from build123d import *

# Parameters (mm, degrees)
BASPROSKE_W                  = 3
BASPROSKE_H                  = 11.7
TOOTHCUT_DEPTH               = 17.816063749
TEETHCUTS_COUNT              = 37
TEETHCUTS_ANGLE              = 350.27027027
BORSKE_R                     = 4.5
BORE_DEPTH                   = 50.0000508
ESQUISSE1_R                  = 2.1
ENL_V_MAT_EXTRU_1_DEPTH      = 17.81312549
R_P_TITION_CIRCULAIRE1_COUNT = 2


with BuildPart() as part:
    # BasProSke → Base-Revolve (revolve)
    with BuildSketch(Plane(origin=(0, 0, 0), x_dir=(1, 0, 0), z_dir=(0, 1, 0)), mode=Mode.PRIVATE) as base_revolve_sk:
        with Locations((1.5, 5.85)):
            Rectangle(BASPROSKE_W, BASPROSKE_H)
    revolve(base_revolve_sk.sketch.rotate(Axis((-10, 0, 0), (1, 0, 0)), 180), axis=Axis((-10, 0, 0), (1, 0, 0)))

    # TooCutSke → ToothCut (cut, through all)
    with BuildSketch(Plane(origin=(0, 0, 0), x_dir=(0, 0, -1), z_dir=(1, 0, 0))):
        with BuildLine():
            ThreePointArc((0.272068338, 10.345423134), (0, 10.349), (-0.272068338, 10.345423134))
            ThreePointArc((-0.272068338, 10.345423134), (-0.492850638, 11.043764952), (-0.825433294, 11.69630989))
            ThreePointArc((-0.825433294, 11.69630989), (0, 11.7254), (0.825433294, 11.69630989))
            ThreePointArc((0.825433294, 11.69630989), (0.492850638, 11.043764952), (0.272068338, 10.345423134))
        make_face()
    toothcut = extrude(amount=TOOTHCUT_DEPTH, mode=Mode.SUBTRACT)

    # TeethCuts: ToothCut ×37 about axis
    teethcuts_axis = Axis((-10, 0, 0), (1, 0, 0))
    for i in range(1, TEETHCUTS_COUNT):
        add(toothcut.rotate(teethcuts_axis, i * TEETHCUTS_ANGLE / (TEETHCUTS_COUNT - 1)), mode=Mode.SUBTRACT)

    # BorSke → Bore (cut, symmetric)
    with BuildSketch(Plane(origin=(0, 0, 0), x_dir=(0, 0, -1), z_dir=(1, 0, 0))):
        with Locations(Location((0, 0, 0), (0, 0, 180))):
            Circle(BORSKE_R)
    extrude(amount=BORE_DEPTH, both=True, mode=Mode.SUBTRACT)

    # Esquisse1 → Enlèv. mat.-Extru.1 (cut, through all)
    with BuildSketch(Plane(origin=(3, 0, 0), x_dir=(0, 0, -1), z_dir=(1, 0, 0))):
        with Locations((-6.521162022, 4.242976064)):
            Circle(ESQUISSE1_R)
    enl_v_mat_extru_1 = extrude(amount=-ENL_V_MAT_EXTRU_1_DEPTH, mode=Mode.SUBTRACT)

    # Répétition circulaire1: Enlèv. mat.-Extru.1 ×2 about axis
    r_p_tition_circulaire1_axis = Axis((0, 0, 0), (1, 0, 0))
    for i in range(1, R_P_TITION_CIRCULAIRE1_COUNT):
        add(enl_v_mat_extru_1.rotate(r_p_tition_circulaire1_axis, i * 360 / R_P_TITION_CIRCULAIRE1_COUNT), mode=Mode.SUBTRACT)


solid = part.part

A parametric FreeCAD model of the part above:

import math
import FreeCAD as App
import Part
import Sketcher

V = App.Vector

doc = App.newDocument("Part")
params = doc.addObject("Spreadsheet::Sheet", "Params")
for row, (alias, value) in enumerate([
    ("sketch1_width", "3 mm"),
    ("sketch1_height", "11.7 mm"),
    ("revolution_angle", "360 deg"),
    ("sketch2_radius", "4.44 mm"),
    ("sketch3_diameter", "9 mm"),
    ("pocket2_length", "100.000102 mm"),
    ("sketch4_diameter", "4.2 mm"),
], start=1):
    params.set(f"A{row}", alias)
    params.set(f"B{row}", "=" + value)
    params.setAlias(f"B{row}", alias)

body = doc.addObject("PartDesign::Body", "Body")

sketch1 = body.newObject("Sketcher::SketchObject", "Sketch")
sketch1.AttachmentSupport = (doc.getObject("XZ_Plane"), [""])
sketch1.MapMode = "FlatFace"
sketch1.addGeometry(Part.LineSegment(V(0, -11.7, 0), V(0, 0, 0)), False)
sketch1.addGeometry(Part.LineSegment(V(0, 0, 0), V(3, 0, 0)), False)
sketch1.addGeometry(Part.LineSegment(V(3, 0, 0), V(3, -11.7, 0)), False)
sketch1.addGeometry(Part.LineSegment(V(3, -11.7, 0), V(0, -11.7, 0)), False)
sketch1.addConstraint(Sketcher.Constraint("Coincident", 0, 2, 1, 1))
sketch1.addConstraint(Sketcher.Constraint("Coincident", 1, 2, 2, 1))
sketch1.addConstraint(Sketcher.Constraint("Coincident", 2, 2, 3, 1))
sketch1.addConstraint(Sketcher.Constraint("Coincident", 3, 2, 0, 1))
sketch1.addConstraint(Sketcher.Constraint("Vertical", 0))
sketch1.addConstraint(Sketcher.Constraint("Horizontal", 1))
sketch1.addConstraint(Sketcher.Constraint("Vertical", 2))
sketch1.addConstraint(Sketcher.Constraint("Horizontal", 3))
sketch1.addConstraint(Sketcher.Constraint("Coincident", 0, 2, -1, 1))
sketch1.addConstraint(Sketcher.Constraint("DistanceX", 1, 1, 1, 2, 3.0))
sketch1.addConstraint(Sketcher.Constraint("DistanceY", 0, 1, 0, 2, 11.7))
sketch1.setExpression("Constraints[9]", "Params.sketch1_width")
sketch1.setExpression("Constraints[10]", "Params.sketch1_height")
revolution = body.newObject("PartDesign::Revolution", "Revolution")
revolution.Profile = sketch1
revolution.ReferenceAxis = (sketch1, ["H_Axis"])
revolution.setExpression("Angle", "Params.revolution_angle")

sketch2 = body.newObject("Sketcher::SketchObject", "Sketch001")
sketch2.AttachmentSupport = (doc.getObject("YZ_Plane"), [""])
sketch2.MapMode = "FlatFace"
sketch2.addGeometry(Part.ArcOfCircle(Part.Circle(V(0, 0, 0), V(0, 0, 1), 10.3), math.radians(-1.51), math.radians(1.51)), False)
sketch2.addGeometry(Part.ArcOfCircle(Part.Circle(V(9.4, -4.6, 0), V(0, 0, 1), 4.4), math.radians(58.26), math.radians(77.19)), False)
sketch2.addGeometry(Part.ArcOfCircle(Part.Circle(V(0, 0, 0), V(0, 0, 1), 11.7), math.radians(-4.04), math.radians(4.04)), False)
sketch2.addGeometry(Part.ArcOfCircle(Part.Circle(V(9.4, 4.6, 0), V(0, 0, 1), 4.4), math.radians(-77.19), math.radians(-58.26)), False)
sketch2.addConstraint(Sketcher.Constraint("Coincident", 0, 1, 1, 2))
sketch2.addConstraint(Sketcher.Constraint("Coincident", 1, 1, 2, 1))
sketch2.addConstraint(Sketcher.Constraint("Coincident", 2, 2, 3, 2))
sketch2.addConstraint(Sketcher.Constraint("Coincident", 3, 1, 0, 2))
sketch2.addConstraint(Sketcher.Constraint("Coincident", 0, 3, -1, 1))
sketch2.addConstraint(Sketcher.Constraint("Coincident", 2, 3, -1, 1))
sketch2.addConstraint(Sketcher.Constraint("Equal", 1, 3))
sketch2.addConstraint(Sketcher.Constraint("Symmetric", 1, 3, 3, 3, -1))
sketch2.addConstraint(Sketcher.Constraint("Radius", 1, 4.44))
sketch2.addConstraint(Sketcher.Constraint("Radius", 0, 10.349))
sketch2.addConstraint(Sketcher.Constraint("Radius", 2, 11.7254))
sketch2.addConstraint(Sketcher.Constraint("DistanceY", 1, 3, -1, 1, 4.601501))
sketch2.addConstraint(Sketcher.Constraint("DistanceY", 0, 1, 2, 2, 1.097502))
sketch2.setExpression("Constraints[8]", "Params.sketch2_radius")
pocket1 = body.newObject("PartDesign::Pocket", "Pocket")
pocket1.Profile = sketch2
pocket1.Type = "ThroughAll"
pocket1.Reversed = True
doc.recompute()

polarpattern = body.newObject("PartDesign::PolarPattern", "PolarPattern")
polarpattern.Originals = [pocket1]
polarpattern.Axis = (doc.getObject("X_Axis"), [""])
polarpattern.Angle = 360
polarpattern.Occurrences = 37
body.Tip = polarpattern

sketch3 = body.newObject("Sketcher::SketchObject", "Sketch002")
sketch3.AttachmentSupport = (doc.getObject("YZ_Plane"), [""])
sketch3.MapMode = "FlatFace"
sketch3.addGeometry(Part.Circle(V(0, 0, 0), V(0, 0, 1), 4.5), False)
sketch3.addConstraint(Sketcher.Constraint("Coincident", 0, 3, -1, 1))
sketch3.addConstraint(Sketcher.Constraint("Diameter", 0, 9.0))
sketch3.setExpression("Constraints[1]", "Params.sketch3_diameter")
pocket2 = body.newObject("PartDesign::Pocket", "Pocket001")
pocket2.Profile = sketch3
pocket2.setExpression("Length", "Params.pocket2_length")
pocket2.Midplane = True

sketch4 = body.newObject("Sketcher::SketchObject", "Sketch003")
sketch4.AttachmentSupport = (doc.getObject("YZ_Plane"), [""])
sketch4.MapMode = "FlatFace"
sketch4.AttachmentOffset = App.Placement(V(0, 0, 3), App.Rotation())
sketch4.addGeometry(Part.Circle(V(4.2, 6.5, 0), V(0, 0, 1), 2.1), False)
sketch4.addConstraint(Sketcher.Constraint("Diameter", 0, 4.2))
sketch4.addConstraint(Sketcher.Constraint("DistanceX", -1, 1, 0, 3, 4.242976))
sketch4.addConstraint(Sketcher.Constraint("DistanceY", -1, 1, 0, 3, 6.521162))
sketch4.setExpression("Constraints[0]", "Params.sketch4_diameter")
pocket3 = body.newObject("PartDesign::Pocket", "Pocket002")
pocket3.Profile = sketch4
pocket3.Type = "ThroughAll"
doc.recompute()

polarpattern2 = body.newObject("PartDesign::PolarPattern", "PolarPattern001")
polarpattern2.Originals = [pocket3]
polarpattern2.Axis = (doc.getObject("X_Axis"), [""])
polarpattern2.Angle = 360
polarpattern2.Occurrences = 2
body.Tip = polarpattern2

doc.recompute()
